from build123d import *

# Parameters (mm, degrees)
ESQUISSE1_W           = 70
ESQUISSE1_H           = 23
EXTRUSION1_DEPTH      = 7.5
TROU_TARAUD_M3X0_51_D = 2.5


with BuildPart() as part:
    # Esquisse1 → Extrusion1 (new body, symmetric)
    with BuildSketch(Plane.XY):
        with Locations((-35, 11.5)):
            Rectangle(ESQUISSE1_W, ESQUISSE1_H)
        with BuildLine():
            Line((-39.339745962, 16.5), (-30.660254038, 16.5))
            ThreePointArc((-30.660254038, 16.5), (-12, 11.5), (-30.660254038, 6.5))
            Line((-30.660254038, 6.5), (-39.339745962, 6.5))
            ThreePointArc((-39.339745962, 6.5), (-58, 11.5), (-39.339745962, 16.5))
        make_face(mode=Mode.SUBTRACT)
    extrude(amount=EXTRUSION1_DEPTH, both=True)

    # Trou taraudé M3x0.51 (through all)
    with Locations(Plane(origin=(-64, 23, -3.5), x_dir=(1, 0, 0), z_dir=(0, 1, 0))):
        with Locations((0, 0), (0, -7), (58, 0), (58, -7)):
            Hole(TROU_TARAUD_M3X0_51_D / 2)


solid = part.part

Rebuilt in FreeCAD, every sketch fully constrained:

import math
import FreeCAD as App
import Part
import Sketcher


def add_polygon(sketch, points):
    """Adds a closed chain of lines whose ends are joined by coincident constraints."""
    first, n = sketch.GeometryCount, len(points)
    for a, b in zip(points, points[1:] + points[:1]):
        sketch.addGeometry(Part.LineSegment(App.Vector(*a, 0), App.Vector(*b, 0)), False)
    for i in range(n):
        sketch.addConstraint(Sketcher.Constraint("Coincident", first + i, 2, first + (i + 1) % n, 1))

doc = App.newDocument("Part")
params = doc.addObject("Spreadsheet::Sheet", "Params")
for row, (alias, value) in enumerate([
    ("sketch1_radius", "10 mm"),
    ("sketch1_width", "70 mm"),
    ("sketch1_height", "23 mm"),
    ("sketch1_height2", "5 mm"),
    ("pad1_length", "15 mm"),
    ("sketch2_diameter", "2.5 mm"),
    ("hole_diameter", "2.5 mm"),
], start=1):
    params.set(f"A{row}", alias)
    params.set(f"B{row}", "=" + value)
    params.setAlias(f"B{row}", alias)

body = doc.addObject("PartDesign::Body", "Body")

# Sketch on XY plane
sketch1 = body.newObject("Sketcher::SketchObject", "Sketch")
sketch1.AttachmentSupport = (doc.getObject("XY_Plane"), [""])
sketch1.MapMode = "FlatFace"
add_polygon(sketch1, [(-70, 23), (-70, 0), (0, 0), (0, 23)])  # lines 0-3
sketch1.addGeometry(Part.ArcOfCircle(Part.Circle(App.Vector(-48, 12, 0), App.Vector(0, 0, 1), 10), math.radians(30), math.radians(330)), False)  # 4
sketch1.addGeometry(Part.LineSegment(App.Vector(-39, 16, 0), App.Vector(-31, 16, 0)), False)  # 5
sketch1.addGeometry(Part.ArcOfCircle(Part.Circle(App.Vector(-22, 12, 0), App.Vector(0, 0, 1), 10), math.radians(-150), math.radians(150)), False)  # 6
sketch1.addGeometry(Part.LineSegment(App.Vector(-31, 6, 0), App.Vector(-39, 6, 0)), False)  # 7
sketch1.addConstraint([
    Sketcher.Constraint("Coincident", 4, 1, 5, 1),
    Sketcher.Constraint("Coincident", 5, 2, 6, 2),
    Sketcher.Constraint("Coincident", 6, 1, 7, 1),
    Sketcher.Constraint("Coincident", 7, 2, 4, 2),
    Sketcher.Constraint("Vertical", 0),
    Sketcher.Constraint("Horizontal", 1),
    Sketcher.Constraint("Vertical", 2),
    Sketcher.Constraint("Horizontal", 3),
    Sketcher.Constraint("Horizontal", 5),
    Sketcher.Constraint("Horizontal", 7),
    Sketcher.Constraint("Coincident", 1, 2, -1, 1),
    Sketcher.Constraint("Equal", 4, 6),
    Sketcher.Constraint("Horizontal", 4, 3, 6, 3),
    Sketcher.Constraint("Vertical", 5, 2, 6, 1),
    Sketcher.Constraint("Radius", 4, 10.0),
    Sketcher.Constraint("DistanceX", 1, 1, 1, 2, 70.0),
    Sketcher.Constraint("DistanceY", 0, 2, 0, 1, 23.0),
    Sketcher.Constraint("DistanceX", 4, 3, -1, 1, 48.0),
    Sketcher.Constraint("DistanceX", 6, 3, -1, 1, 22.0),
    Sketcher.Constraint("DistanceY", 4, 3, 4, 1, 5.0),
    Sketcher.Constraint("DistanceY", -1, 1, 4, 3, 11.5),
])
sketch1.setExpression("Constraints[18]", "Params.sketch1_radius")
sketch1.setExpression("Constraints[19]", "Params.sketch1_width")
sketch1.setExpression("Constraints[20]", "Params.sketch1_height")
sketch1.setExpression("Constraints[23]", "Params.sketch1_height2")
pad1 = body.newObject("PartDesign::Pad", "Pad")
pad1.Profile = sketch1
pad1.setExpression("Length", "Params.pad1_length")
pad1.Midplane = True

# Sketch on XZ plane
sketch2 = body.newObject("Sketcher::SketchObject", "Sketch001")
sketch2.AttachmentSupport = (doc.getObject("XZ_Plane"), [""])
sketch2.MapMode = "FlatFace"
sketch2.AttachmentOffset = App.Placement(App.Vector(0, 0, -23), App.Rotation())
sketch2.addGeometry([
    Part.Circle(App.Vector(-64, -3.5, 0), App.Vector(0, 0, 1), 1.2),
    Part.Circle(App.Vector(-64, 3.5, 0), App.Vector(0, 0, 1), 1.2),
    Part.Circle(App.Vector(-6, -3.5, 0), App.Vector(0, 0, 1), 1.2),
    Part.Circle(App.Vector(-6, 3.5, 0), App.Vector(0, 0, 1), 1.2),
], False)
sketch2.addConstraint([
    Sketcher.Constraint("Equal", 0, 1),
    Sketcher.Constraint("Equal", 1, 2),
    Sketcher.Constraint("Equal", 2, 3),
    Sketcher.Constraint("Symmetric", 0, 3, 1, 3, -1),
    Sketcher.Constraint("Symmetric", 2, 3, 3, 3, -1),
    Sketcher.Constraint("Horizontal", 0, 3, 2, 3),
    Sketcher.Constraint("Diameter", 0, 2.5),
    Sketcher.Constraint("DistanceX", 0, 3, -1, 1, 64.0),
    Sketcher.Constraint("DistanceX", 2, 3, -1, 1, 6.0),
    Sketcher.Constraint("DistanceY", 0, 3, 1, 3, 7.0),
])
sketch2.setExpression("Constraints[6]", "Params.sketch2_diameter")
doc.recompute()
hole = body.newObject("PartDesign::Hole", "Hole")
hole.Profile = sketch2
hole.ThreadType = "None"
hole.setExpression("Diameter", "Params.hole_diameter")
hole.DepthType = "ThroughAll"
hole.Reversed = True

doc.recompute()
